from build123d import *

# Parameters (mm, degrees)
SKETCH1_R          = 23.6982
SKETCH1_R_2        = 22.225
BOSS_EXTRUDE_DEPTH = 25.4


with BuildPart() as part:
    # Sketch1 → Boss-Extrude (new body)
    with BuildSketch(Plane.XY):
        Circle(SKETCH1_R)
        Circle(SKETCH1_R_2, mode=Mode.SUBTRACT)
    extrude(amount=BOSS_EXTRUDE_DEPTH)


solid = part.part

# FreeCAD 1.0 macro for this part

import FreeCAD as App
import Part
import Sketcher
Q = App.Units.Quantity

doc = App.newDocument("Part")
body = doc.addObject("PartDesign::Body", "Body")

# Sketch on XY plane
sketch1 = body.newObject("Sketcher::SketchObject", "Sketch")
sketch1.AttachmentSupport = (doc.getObject("XY_Plane"), [""])
sketch1.MapMode = "FlatFace"
sketch1.addGeometry([
    Part.Circle(App.Vector(0, 0, 0), App.Vector(0, 0, 1), 24),
    Part.Circle(App.Vector(0, 0, 0), App.Vector(0, 0, 1), 22),
], False)
sketch1.addConstraint([
    Sketcher.Constraint("Coincident", 0, 3, -1, 1),
    Sketcher.Constraint("Coincident", 1, 3, -1, 1),
    Sketcher.Constraint("Diameter", 1, Q("1.75 in")),
    Sketcher.Constraint("Diameter", 0, Q("1.866 in")),
])
pad1 = body.newObject("PartDesign::Pad", "Pad")
pad1.Profile = sketch1
pad1.Length = Q("1 in")

doc.recompute()
